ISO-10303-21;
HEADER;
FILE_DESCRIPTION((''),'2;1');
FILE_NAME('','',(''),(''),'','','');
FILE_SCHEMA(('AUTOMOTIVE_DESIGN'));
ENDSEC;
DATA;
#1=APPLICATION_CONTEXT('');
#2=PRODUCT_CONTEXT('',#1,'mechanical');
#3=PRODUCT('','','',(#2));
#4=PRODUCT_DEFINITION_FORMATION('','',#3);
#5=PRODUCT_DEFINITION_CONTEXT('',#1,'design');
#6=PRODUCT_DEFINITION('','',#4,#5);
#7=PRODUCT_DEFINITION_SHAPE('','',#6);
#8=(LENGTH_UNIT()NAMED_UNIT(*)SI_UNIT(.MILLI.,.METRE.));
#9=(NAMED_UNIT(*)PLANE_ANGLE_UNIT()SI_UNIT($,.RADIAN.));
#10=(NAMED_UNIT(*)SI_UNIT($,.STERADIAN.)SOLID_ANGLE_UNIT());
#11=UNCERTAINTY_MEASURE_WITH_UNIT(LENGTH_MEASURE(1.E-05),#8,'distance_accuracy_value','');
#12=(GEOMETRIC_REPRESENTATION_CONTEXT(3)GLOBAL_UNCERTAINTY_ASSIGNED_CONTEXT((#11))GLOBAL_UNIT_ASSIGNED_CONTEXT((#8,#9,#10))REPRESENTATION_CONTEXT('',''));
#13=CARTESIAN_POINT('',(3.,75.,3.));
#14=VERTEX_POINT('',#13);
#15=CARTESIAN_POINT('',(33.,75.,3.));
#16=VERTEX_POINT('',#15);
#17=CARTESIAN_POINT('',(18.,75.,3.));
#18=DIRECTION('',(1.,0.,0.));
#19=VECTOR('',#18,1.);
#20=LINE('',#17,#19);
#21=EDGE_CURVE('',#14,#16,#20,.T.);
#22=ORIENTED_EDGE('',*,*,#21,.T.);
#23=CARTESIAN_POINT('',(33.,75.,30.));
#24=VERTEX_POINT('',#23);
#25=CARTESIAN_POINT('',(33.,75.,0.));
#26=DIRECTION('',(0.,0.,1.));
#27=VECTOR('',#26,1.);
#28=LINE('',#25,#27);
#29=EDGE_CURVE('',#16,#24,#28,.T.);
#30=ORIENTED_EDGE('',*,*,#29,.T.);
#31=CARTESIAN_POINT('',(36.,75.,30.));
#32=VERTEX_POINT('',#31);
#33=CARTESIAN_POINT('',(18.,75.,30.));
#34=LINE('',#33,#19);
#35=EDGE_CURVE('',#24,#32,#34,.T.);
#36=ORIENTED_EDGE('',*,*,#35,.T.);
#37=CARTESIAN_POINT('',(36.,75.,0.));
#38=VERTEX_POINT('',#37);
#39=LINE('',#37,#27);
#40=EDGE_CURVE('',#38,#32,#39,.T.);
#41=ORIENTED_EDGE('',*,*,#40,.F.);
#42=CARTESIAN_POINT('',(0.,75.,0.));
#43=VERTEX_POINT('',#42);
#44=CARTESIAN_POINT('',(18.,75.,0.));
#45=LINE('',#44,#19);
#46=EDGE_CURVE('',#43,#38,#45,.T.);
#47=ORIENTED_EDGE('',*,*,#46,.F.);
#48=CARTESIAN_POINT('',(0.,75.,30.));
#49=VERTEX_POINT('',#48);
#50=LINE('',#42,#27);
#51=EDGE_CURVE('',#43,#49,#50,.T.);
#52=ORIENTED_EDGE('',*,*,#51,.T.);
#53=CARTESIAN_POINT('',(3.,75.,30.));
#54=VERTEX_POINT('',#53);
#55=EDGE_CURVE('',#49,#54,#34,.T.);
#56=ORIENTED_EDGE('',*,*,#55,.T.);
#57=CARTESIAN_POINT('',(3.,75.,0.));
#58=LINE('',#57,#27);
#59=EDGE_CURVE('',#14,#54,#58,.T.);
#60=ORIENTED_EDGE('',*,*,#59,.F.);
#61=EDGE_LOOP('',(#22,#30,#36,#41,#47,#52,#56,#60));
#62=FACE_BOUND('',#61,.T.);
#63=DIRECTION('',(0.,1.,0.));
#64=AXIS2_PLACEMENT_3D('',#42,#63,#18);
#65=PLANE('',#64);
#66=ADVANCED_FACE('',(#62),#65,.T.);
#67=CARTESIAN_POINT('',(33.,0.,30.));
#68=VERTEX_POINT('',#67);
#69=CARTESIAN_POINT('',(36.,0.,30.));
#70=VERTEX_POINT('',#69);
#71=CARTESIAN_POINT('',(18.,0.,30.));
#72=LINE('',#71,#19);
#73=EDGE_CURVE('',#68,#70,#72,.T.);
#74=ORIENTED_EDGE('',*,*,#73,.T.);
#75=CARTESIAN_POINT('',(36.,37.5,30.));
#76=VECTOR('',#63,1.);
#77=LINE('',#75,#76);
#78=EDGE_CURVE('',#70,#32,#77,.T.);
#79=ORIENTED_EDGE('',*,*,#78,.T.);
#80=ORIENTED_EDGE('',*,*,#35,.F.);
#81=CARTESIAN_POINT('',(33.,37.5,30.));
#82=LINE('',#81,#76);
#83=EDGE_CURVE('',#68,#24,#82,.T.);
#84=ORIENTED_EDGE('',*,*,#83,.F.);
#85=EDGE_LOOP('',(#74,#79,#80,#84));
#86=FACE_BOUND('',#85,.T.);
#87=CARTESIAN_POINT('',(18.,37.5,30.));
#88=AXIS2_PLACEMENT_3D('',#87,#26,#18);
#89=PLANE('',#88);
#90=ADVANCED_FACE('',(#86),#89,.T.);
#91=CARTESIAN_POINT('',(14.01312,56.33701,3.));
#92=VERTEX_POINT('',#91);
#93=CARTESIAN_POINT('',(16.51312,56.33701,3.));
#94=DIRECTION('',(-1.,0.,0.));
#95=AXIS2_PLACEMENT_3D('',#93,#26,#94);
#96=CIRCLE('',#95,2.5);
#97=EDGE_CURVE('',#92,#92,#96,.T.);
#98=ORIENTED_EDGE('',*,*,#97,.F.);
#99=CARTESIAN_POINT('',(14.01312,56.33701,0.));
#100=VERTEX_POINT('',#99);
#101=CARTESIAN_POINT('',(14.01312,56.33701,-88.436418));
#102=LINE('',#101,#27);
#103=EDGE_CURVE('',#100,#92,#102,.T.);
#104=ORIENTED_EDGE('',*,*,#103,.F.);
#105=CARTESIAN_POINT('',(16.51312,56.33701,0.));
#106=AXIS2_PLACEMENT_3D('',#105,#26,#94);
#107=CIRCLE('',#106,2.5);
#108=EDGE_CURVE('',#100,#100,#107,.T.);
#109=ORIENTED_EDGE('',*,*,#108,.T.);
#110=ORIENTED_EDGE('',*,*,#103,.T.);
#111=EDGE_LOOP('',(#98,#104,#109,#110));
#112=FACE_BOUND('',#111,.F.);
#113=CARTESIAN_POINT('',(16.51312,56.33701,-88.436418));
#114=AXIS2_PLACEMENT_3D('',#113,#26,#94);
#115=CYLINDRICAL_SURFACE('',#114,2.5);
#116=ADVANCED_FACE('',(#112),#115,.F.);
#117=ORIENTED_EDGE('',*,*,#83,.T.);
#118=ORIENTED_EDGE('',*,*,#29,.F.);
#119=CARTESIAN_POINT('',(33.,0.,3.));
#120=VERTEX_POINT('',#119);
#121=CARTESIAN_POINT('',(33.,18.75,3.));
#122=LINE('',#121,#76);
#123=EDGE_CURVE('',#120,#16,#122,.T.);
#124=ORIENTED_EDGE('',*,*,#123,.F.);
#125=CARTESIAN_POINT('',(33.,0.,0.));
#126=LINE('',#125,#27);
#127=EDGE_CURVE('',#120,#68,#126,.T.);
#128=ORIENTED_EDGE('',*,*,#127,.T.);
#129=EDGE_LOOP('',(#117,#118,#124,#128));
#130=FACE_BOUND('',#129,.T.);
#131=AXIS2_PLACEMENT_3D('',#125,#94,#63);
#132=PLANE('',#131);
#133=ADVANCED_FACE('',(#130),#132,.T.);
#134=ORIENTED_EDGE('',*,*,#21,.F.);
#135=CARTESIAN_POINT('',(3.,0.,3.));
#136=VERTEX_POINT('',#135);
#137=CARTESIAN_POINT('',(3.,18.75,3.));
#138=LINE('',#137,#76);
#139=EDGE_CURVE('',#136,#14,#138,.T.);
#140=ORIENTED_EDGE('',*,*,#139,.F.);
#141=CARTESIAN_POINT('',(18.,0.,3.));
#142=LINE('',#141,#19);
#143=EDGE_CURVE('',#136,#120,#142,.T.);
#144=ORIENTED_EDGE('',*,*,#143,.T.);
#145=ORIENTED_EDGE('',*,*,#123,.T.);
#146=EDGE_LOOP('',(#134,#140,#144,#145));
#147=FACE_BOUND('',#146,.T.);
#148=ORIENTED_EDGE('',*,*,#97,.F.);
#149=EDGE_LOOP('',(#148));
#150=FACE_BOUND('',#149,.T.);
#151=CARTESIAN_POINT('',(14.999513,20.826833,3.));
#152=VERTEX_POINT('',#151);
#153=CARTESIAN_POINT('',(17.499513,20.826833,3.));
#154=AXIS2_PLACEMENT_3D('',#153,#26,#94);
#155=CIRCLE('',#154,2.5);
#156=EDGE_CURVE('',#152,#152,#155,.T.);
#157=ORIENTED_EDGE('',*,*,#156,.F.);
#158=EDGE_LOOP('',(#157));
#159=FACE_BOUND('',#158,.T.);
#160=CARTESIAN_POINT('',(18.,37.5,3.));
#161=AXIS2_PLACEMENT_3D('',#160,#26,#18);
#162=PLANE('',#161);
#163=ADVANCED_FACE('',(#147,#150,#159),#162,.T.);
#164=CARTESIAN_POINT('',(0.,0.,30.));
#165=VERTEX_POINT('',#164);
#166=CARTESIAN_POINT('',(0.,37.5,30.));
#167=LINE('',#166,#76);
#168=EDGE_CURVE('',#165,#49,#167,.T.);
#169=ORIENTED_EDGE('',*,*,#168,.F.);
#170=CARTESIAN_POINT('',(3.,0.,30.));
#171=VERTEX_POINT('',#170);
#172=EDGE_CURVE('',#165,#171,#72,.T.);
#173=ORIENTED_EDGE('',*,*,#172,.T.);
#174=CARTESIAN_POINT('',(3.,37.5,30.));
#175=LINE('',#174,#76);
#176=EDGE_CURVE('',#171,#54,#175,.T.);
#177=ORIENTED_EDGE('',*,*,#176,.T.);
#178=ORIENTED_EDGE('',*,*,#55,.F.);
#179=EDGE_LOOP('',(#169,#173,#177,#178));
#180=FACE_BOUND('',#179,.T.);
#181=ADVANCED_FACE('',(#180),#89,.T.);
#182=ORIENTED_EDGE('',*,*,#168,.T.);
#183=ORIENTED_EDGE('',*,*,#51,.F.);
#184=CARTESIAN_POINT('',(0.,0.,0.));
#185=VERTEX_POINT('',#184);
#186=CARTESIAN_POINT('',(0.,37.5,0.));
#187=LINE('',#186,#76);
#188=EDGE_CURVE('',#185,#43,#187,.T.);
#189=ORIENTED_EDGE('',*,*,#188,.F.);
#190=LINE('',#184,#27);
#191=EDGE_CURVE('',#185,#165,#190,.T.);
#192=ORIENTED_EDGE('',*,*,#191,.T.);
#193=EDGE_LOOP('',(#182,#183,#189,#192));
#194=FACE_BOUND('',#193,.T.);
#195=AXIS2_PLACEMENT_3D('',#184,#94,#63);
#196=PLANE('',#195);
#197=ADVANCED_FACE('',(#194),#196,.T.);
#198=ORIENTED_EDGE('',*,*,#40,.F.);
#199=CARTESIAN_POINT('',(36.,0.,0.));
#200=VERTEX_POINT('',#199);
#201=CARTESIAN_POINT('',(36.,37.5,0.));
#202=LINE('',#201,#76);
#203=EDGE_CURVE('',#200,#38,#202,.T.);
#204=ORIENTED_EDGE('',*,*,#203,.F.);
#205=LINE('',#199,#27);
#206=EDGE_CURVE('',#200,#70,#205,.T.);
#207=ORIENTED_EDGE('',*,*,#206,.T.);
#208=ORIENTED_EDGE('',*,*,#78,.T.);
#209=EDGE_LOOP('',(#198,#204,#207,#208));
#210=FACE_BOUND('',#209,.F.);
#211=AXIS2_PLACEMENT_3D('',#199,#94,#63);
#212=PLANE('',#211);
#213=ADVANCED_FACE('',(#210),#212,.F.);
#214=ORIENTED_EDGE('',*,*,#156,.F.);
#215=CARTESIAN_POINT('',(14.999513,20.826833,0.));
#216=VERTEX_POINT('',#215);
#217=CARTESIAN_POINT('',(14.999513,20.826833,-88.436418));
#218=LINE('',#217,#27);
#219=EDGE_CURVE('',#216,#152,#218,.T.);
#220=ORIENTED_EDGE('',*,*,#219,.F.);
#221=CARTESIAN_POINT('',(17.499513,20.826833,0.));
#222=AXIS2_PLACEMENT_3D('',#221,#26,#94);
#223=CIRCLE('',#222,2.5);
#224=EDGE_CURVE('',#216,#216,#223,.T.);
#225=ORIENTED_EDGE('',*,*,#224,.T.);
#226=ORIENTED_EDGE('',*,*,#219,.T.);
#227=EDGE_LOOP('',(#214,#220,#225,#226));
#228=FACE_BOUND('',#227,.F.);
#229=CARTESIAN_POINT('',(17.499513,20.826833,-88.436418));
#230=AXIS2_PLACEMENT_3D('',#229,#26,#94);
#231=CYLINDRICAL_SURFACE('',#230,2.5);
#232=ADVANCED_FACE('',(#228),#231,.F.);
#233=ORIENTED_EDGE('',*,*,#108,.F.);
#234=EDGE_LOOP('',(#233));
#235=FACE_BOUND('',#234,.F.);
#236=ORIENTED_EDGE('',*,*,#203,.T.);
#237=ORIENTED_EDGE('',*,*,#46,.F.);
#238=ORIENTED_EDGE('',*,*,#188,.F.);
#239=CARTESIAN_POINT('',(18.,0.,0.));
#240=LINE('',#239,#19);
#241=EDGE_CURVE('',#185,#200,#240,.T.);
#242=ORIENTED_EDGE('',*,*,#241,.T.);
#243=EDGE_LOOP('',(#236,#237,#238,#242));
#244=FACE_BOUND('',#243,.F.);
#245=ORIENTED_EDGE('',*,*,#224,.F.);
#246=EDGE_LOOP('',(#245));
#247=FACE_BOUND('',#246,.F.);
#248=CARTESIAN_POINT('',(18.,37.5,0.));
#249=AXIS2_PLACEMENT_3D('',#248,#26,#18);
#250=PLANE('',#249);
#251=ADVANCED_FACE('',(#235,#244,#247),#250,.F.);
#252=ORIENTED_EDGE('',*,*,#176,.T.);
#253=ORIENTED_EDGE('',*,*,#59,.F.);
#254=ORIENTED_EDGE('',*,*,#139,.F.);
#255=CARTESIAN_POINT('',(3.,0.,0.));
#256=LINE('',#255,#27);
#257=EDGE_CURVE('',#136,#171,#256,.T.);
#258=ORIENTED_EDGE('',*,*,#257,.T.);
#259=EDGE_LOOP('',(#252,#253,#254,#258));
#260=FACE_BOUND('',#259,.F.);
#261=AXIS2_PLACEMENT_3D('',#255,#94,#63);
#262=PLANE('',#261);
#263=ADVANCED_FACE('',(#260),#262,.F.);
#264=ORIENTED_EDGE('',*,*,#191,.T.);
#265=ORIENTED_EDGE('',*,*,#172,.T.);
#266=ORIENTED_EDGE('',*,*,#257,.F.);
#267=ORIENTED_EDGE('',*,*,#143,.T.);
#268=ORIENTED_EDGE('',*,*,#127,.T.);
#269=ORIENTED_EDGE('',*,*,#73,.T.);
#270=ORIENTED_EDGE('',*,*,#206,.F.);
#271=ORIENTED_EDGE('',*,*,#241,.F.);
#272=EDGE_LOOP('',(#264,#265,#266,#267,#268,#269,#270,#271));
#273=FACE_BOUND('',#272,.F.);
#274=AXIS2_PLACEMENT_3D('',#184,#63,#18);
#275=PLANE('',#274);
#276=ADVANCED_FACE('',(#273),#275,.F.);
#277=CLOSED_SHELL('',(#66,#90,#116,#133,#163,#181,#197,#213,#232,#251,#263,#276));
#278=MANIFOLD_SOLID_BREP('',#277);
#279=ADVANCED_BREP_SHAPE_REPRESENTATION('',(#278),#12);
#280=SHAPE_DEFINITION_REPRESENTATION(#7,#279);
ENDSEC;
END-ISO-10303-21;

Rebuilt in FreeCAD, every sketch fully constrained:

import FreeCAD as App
import Part
import Sketcher
Q = App.Units.Quantity


def faces_at(feature, points):
    """Names of the faces that lie closest to the given points."""
    faces = feature.Shape.Faces
    near = lambda p: min(range(len(faces)), key=lambda i: faces[i].distToShape(Part.Vertex(*p))[0])
    return sorted({f"Face{near(p) + 1}" for p in points})


def add_polygon(sketch, points):
    """Adds a closed chain of lines whose ends are joined by coincident constraints."""
    first, n = sketch.GeometryCount, len(points)
    for a, b in zip(points, points[1:] + points[:1]):
        sketch.addGeometry(Part.LineSegment(App.Vector(*a, 0), App.Vector(*b, 0)), False)
    for i in range(n):
        sketch.addConstraint(Sketcher.Constraint("Coincident", first + i, 2, first + (i + 1) % n, 1))

doc = App.newDocument("Part")
params = doc.addObject("Spreadsheet::Sheet", "Params")
for row, (alias, value) in enumerate([
    ("sketch1_width", "36 mm"),
    ("sketch1_height", "75 mm"),
    ("pad1_length", "30 mm"),
    ("thickness_wall", "3 mm"),
    ("sketch2_diameter", "5 mm"),
    ("hole_diameter", "5 mm"),
], start=1):
    params.set(f"A{row}", alias)
    params.set(f"B{row}", "=" + value)
    params.setAlias(f"B{row}", alias)

body = doc.addObject("PartDesign::Body", "Body")

sketch1 = body.newObject("Sketcher::SketchObject", "Sketch")
sketch1.AttachmentSupport = (doc.getObject("XY_Plane"), [""])
sketch1.MapMode = "FlatFace"
add_polygon(sketch1, [(0, 75), (0, 0), (36, 0), (36, 75)])
sketch1.addConstraint([
    Sketcher.Constraint("Vertical", 0),
    Sketcher.Constraint("Horizontal", 1),
    Sketcher.Constraint("Vertical", 2),
    Sketcher.Constraint("Horizontal", 3),
    Sketcher.Constraint("Coincident", 0, 2, -1, 1),
    Sketcher.Constraint("DistanceX", 1, 1, 1, 2, Q("36 mm")),
    Sketcher.Constraint("DistanceY", 0, 2, 0, 1, Q("75 mm")),
])
sketch1.setExpression("Constraints[9]", "Params.sketch1_width")
sketch1.setExpression("Constraints[10]", "Params.sketch1_height")
pad1 = body.newObject("PartDesign::Pad", "Pad")
pad1.Profile = sketch1
pad1.setExpression("Length", "Params.pad1_length")
doc.recompute()

thickness = body.newObject("PartDesign::Thickness", "Thickness")
thickness.Base = (pad1, faces_at(pad1, [(18, 0, 15), (18, 37.5, 30), (18, 75, 15)]))
thickness.setExpression("Value", "Params.thickness_wall")
thickness.Reversed = True
thickness.Join = "Arc"

sketch2 = body.newObject("Sketcher::SketchObject", "Sketch001")
sketch2.AttachmentSupport = (doc.getObject("XY_Plane"), [""])
sketch2.MapMode = "FlatFace"
sketch2.addGeometry([
    Part.Circle(App.Vector(17.5, 20.8, 0), App.Vector(0, 0, 1), 2.5),
    Part.Circle(App.Vector(16.5, 56.3, 0), App.Vector(0, 0, 1), 2.5),
], False)
sketch2.addConstraint([
    Sketcher.Constraint("Equal", 0, 1),
    Sketcher.Constraint("Diameter", 0, Q("5 mm")),
    Sketcher.Constraint("DistanceX", -1, 1, 1, 3, Q("16.51312 mm")),
    Sketcher.Constraint("DistanceY", -1, 1, 1, 3, Q("56.33701 mm")),
    Sketcher.Constraint("DistanceX", -1, 1, 0, 3, Q("17.499513 mm")),
    Sketcher.Constraint("DistanceY", -1, 1, 0, 3, Q("20.826833 mm")),
])
sketch2.setExpression("Constraints[1]", "Params.sketch2_diameter")
doc.recompute()
hole = body.newObject("PartDesign::Hole", "Hole")
hole.Profile = sketch2
hole.ThreadType = "None"
hole.setExpression("Diameter", "Params.hole_diameter")
hole.DepthType = "ThroughAll"
hole.Reversed = True

doc.recompute()
